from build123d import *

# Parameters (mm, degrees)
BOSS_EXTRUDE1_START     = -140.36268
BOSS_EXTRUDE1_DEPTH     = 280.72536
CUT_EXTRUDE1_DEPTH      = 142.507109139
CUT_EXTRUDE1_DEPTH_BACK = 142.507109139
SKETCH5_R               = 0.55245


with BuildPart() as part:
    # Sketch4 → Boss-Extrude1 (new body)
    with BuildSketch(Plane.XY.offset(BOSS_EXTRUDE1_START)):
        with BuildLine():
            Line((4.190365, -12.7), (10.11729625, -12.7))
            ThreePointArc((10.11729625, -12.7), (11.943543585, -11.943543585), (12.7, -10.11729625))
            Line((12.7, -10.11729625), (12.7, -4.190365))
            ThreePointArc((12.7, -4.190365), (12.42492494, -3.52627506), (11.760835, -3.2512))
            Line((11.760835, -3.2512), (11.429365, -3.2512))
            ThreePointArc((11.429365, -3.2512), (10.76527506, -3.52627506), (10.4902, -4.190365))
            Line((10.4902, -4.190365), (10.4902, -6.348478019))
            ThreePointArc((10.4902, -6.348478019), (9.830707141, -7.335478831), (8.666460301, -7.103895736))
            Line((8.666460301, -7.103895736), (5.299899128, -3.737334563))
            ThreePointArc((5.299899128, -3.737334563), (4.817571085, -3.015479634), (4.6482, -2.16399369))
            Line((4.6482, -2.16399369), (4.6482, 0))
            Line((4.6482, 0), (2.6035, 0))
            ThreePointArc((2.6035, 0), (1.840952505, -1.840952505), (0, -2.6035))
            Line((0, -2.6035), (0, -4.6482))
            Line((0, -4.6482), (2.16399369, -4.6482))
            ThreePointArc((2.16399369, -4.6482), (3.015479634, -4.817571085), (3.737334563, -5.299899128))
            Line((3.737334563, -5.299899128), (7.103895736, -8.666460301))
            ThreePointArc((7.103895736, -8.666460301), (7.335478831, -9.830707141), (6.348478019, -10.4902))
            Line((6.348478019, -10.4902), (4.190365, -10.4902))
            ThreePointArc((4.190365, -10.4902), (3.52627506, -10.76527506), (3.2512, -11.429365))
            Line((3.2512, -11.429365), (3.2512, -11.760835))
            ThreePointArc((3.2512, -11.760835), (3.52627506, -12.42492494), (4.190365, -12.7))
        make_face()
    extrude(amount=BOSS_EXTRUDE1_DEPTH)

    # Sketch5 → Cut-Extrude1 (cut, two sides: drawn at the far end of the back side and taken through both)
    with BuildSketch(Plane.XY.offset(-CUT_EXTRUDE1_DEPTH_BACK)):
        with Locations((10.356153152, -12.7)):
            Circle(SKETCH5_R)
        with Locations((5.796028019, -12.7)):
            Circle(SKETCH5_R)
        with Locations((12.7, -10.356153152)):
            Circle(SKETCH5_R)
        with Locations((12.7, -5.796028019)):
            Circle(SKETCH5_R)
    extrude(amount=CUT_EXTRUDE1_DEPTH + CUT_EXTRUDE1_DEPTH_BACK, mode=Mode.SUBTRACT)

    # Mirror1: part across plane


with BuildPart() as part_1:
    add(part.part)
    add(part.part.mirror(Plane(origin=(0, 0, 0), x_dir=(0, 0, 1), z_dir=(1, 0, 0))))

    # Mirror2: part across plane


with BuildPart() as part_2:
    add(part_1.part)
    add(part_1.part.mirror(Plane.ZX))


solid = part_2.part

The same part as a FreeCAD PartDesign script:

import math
import FreeCAD as App
import Part
import Sketcher

V = App.Vector
Q = App.Units.Quantity

doc = App.newDocument("Part")
params = doc.addObject("Spreadsheet::Sheet", "Params")
for row, (alias, value) in enumerate([
    ("pad1_length", "280.72536 mm"),
], start=1):
    params.set(f"A{row}", alias)
    params.set(f"B{row}", "=" + value)
    params.setAlias(f"B{row}", alias)

body = doc.addObject("PartDesign::Body", "Body")

# Sketch on XY plane
sketch1 = doc.addObject("Sketcher::SketchObject", "Sketch")
body.addObject(sketch1)
sketch1.AttachmentSupport = (doc.XY_Plane, [""])
sketch1.MapMode = "FlatFace"
sketch1.AttachmentOffset = App.Placement(V(0, 0, -140.36268), App.Rotation())
sketch1.addGeometry([
    Part.LineSegment(V(4.190365, -12.7, 0), V(10.117296, -12.7, 0)),  # 0
    Part.ArcOfCircle(Part.Circle(V(10.117296, -10.117296, 0), V(0, 0, 1), 2.582704), math.radians(-90), math.radians(0)),  # 1
    Part.LineSegment(V(12.7, -10.117296, 0), V(12.7, -4.190365, 0)),  # 2
    Part.ArcOfCircle(Part.Circle(V(11.760835, -4.190365, 0), V(0, 0, 1), 0.939165), math.radians(0), math.radians(90)),  # 3
    Part.LineSegment(V(11.760835, -3.2512, 0), V(11.429365, -3.2512, 0)),  # 4
    Part.ArcOfCircle(Part.Circle(V(11.429365, -4.190365, 0), V(0, 0, 1), 0.939165), math.radians(90), math.radians(180)),  # 5
    Part.LineSegment(V(10.4902, -4.190365, 0), V(10.4902, -6.348478, 0)),  # 6
    Part.ArcOfCircle(Part.Circle(V(9.421878, -6.348478, 0), V(0, 0, 1), 1.068322), math.radians(-135), math.radians(0)),  # 7
    Part.LineSegment(V(8.66646, -7.103896, 0), V(5.299899, -3.737335, 0)),  # 8
    Part.ArcOfCircle(Part.Circle(V(6.87324, -2.163994, 0), V(0, 0, 1), 2.22504), math.radians(-180), math.radians(-135)),  # 9
    Part.LineSegment(V(4.6482, -2.163994, 0), V(4.6482, 0, 0)),  # 10
    Part.LineSegment(V(4.6482, 0, 0), V(2.6035, 0, 0)),  # 11
    Part.ArcOfCircle(Part.Circle(V(0, 0, 0), V(0, 0, 1), 2.6035), math.radians(-90), math.radians(0)),  # 12
    Part.LineSegment(V(0, -2.6035, 0), V(0, -4.6482, 0)),  # 13
    Part.LineSegment(V(0, -4.6482, 0), V(2.163994, -4.6482, 0)),  # 14
    Part.ArcOfCircle(Part.Circle(V(2.163994, -6.87324, 0), V(0, 0, 1), 2.22504), math.radians(45), math.radians(90)),  # 15
    Part.LineSegment(V(3.737335, -5.299899, 0), V(7.103896, -8.66646, 0)),  # 16
    Part.ArcOfCircle(Part.Circle(V(6.348478, -9.421878, 0), V(0, 0, 1), 1.068322), math.radians(-90), math.radians(45)),  # 17
    Part.LineSegment(V(6.348478, -10.4902, 0), V(4.190365, -10.4902, 0)),  # 18
    Part.ArcOfCircle(Part.Circle(V(4.190365, -11.429365, 0), V(0, 0, 1), 0.939165), math.radians(90), math.radians(180)),  # 19
    Part.LineSegment(V(3.2512, -11.429365, 0), V(3.2512, -11.760835, 0)),  # 20
    Part.ArcOfCircle(Part.Circle(V(4.190365, -11.760835, 0), V(0, 0, 1), 0.939165), math.radians(-180), math.radians(-90)),  # 21
], False)
sketch1.addConstraint([
    Sketcher.Constraint("Tangent", 0, 2, 1, 1),
    Sketcher.Constraint("Tangent", 1, 2, 2, 1),
    Sketcher.Constraint("Tangent", 2, 2, 3, 1),
    Sketcher.Constraint("Tangent", 3, 2, 4, 1),
    Sketcher.Constraint("Tangent", 4, 2, 5, 1),
    Sketcher.Constraint("Tangent", 5, 2, 6, 1),
    Sketcher.Constraint("Tangent", 6, 2, 7, 2),
    Sketcher.Constraint("Tangent", 7, 1, 8, 1),
    Sketcher.Constraint("Tangent", 8, 2, 9, 2),
    Sketcher.Constraint("Tangent", 9, 1, 10, 1),
    Sketcher.Constraint("Coincident", 10, 2, 11, 1),
    Sketcher.Constraint("Coincident", 11, 2, 12, 2),
    Sketcher.Constraint("Coincident", 12, 1, 13, 1),
    Sketcher.Constraint("Coincident", 13, 2, 14, 1),
    Sketcher.Constraint("Tangent", 14, 2, 15, 2),
    Sketcher.Constraint("Tangent", 15, 1, 16, 1),
    Sketcher.Constraint("Tangent", 16, 2, 17, 2),
    Sketcher.Constraint("Tangent", 17, 1, 18, 1),
    Sketcher.Constraint("Tangent", 18, 2, 19, 1),
    Sketcher.Constraint("Tangent", 19, 2, 20, 1),
    Sketcher.Constraint("Tangent", 20, 2, 21, 1),
    Sketcher.Constraint("Tangent", 21, 2, 0, 1),
    Sketcher.Constraint("Horizontal", 0),
    Sketcher.Constraint("Vertical", 2),
    Sketcher.Constraint("Horizontal", 4),
    Sketcher.Constraint("Vertical", 6),
    Sketcher.Constraint("Vertical", 10),
    Sketcher.Constraint("Horizontal", 11),
    Sketcher.Constraint("Vertical", 13),
    Sketcher.Constraint("Horizontal", 14),
    Sketcher.Constraint("Horizontal", 18),
    Sketcher.Constraint("Vertical", 20),
    Sketcher.Constraint("Coincident", 12, 3, -1, 1),
    Sketcher.Constraint("Equal", 3, 5),
    Sketcher.Constraint("Equal", 9, 15),
    Sketcher.Constraint("Equal", 7, 17),
    Sketcher.Constraint("Equal", 5, 19),
    Sketcher.Constraint("Equal", 19, 21),
    Sketcher.Constraint("PointOnObject", 10, 2, -1),
    Sketcher.Constraint("PointOnObject", 12, 1, -2),
    Sketcher.Constraint("Parallel", 8, 16),
    Sketcher.Constraint("Equal", 0, 2),
    Sketcher.Constraint("Equal", 18, 6),
    Sketcher.Constraint("Equal", 14, 10),
    Sketcher.Constraint("Equal", 11, 13),
    Sketcher.Constraint("Equal", 4, 20),
    Sketcher.Constraint("Equal", 8, 16),
    Sketcher.Constraint("DistanceY", 0, 2, -1, 1, Q("0.5 in")),
    Sketcher.Constraint("Radius", 9, Q("0.0876 in")),
    Sketcher.Constraint("Radius", 12, Q("0.1025 in")),
    Sketcher.Constraint("DistanceX", 9, 1, 5, 2, Q("0.23 in")),
    Sketcher.Constraint("DistanceX", 11, 2, 11, 1, Q("0.0805 in")),
    Sketcher.Constraint("DistanceY", 3, 2, -1, 1, Q("0.128 in")),
    Sketcher.Constraint("Radius", 7, Q("1.068322 mm")),
    Sketcher.Constraint("DistanceX", 17, 3, 7, 3, Q("0.121 in")),
    Sketcher.Constraint("Radius", 1, Q("2.582704 mm")),
    Sketcher.Constraint("Radius", 3, Q("0.939165 mm")),
])
pad1 = doc.addObject("PartDesign::Pad", "Pad")
body.addObject(pad1)
pad1.Profile = sketch1
pad1.setExpression("Length", "Params.pad1_length")

# Sketch on XY plane
sketch2 = doc.addObject("Sketcher::SketchObject", "Sketch001")
body.addObject(sketch2)
sketch2.AttachmentSupport = (doc.XY_Plane, [""])
sketch2.MapMode = "FlatFace"
sketch2.addGeometry([
    Part.Circle(V(10.356153, -12.7, 0), V(0, 0, 1), 0.55245),
    Part.Circle(V(5.796028, -12.7, 0), V(0, 0, 1), 0.55245),
    Part.Circle(V(12.7, -10.356153, 0), V(0, 0, 1), 0.55245),
    Part.Circle(V(12.7, -5.796028, 0), V(0, 0, 1), 0.55245),
], False)
sketch2.addConstraint([
    Sketcher.Constraint("Equal", 0, 1),
    Sketcher.Constraint("Equal", 1, 2),
    Sketcher.Constraint("Equal", 2, 3),
    Sketcher.Constraint("Horizontal", 0, 3, 1, 3),
    Sketcher.Constraint("Vertical", 2, 3, 3, 3),
    Sketcher.Constraint("Diameter", 0, Q("0.0435 in")),
    Sketcher.Constraint("DistanceY", 0, 3, -1, 1, Q("0.5 in")),
    Sketcher.Constraint("DistanceX", -1, 1, 2, 3, Q("0.5 in")),
    Sketcher.Constraint("DistanceX", -1, 1, 1, 3, Q("5.796028 mm")),
    Sketcher.Constraint("DistanceY", 3, 3, -1, 1, Q("5.796028 mm")),
    Sketcher.Constraint("DistanceX", -1, 1, 0, 3, Q("10.356153 mm")),
    Sketcher.Constraint("DistanceY", 2, 3, -1, 1, Q("10.356153 mm")),
])
pocket1 = doc.addObject("PartDesign::Pocket", "Pocket")
body.addObject(pocket1)
pocket1.Profile = sketch2
pocket1.Type = "ThroughAll"
pocket1.Midplane = True
body2 = doc.addObject("PartDesign::Body", "Body001")
doc.recompute()

body2.BaseFeature = body
doc.recompute()

mirroring = doc.addObject("Part::Mirroring", "Mirroring")
mirroring.Source = body
mirroring.Base = V(0, 0, 0)
mirroring.Normal = V(1, 0, 0)
body3 = doc.addObject("PartDesign::Body", "Body002")
body3.BaseFeature = mirroring
boolean = doc.addObject("PartDesign::Boolean", "Boolean")
body2.addObject(boolean)
boolean.Type = "Fuse"
boolean.addObjects([body3])
doc.recompute()
body4 = doc.addObject("PartDesign::Body", "Body003")
doc.recompute()

body4.BaseFeature = body2
doc.recompute()

mirroring2 = doc.addObject("Part::Mirroring", "Mirroring001")
mirroring2.Source = body2
mirroring2.Base = V(0, 0, 0)
mirroring2.Normal = V(0, 1, 0)
body5 = doc.addObject("PartDesign::Body", "Body004")
body5.BaseFeature = mirroring2
boolean2 = doc.addObject("PartDesign::Boolean", "Boolean001")
body4.addObject(boolean2)
boolean2.Type = "Fuse"
boolean2.addObjects([body5])
doc.recompute()
mirroring.Visibility = False
mirroring2.Visibility = False

doc.recompute()
